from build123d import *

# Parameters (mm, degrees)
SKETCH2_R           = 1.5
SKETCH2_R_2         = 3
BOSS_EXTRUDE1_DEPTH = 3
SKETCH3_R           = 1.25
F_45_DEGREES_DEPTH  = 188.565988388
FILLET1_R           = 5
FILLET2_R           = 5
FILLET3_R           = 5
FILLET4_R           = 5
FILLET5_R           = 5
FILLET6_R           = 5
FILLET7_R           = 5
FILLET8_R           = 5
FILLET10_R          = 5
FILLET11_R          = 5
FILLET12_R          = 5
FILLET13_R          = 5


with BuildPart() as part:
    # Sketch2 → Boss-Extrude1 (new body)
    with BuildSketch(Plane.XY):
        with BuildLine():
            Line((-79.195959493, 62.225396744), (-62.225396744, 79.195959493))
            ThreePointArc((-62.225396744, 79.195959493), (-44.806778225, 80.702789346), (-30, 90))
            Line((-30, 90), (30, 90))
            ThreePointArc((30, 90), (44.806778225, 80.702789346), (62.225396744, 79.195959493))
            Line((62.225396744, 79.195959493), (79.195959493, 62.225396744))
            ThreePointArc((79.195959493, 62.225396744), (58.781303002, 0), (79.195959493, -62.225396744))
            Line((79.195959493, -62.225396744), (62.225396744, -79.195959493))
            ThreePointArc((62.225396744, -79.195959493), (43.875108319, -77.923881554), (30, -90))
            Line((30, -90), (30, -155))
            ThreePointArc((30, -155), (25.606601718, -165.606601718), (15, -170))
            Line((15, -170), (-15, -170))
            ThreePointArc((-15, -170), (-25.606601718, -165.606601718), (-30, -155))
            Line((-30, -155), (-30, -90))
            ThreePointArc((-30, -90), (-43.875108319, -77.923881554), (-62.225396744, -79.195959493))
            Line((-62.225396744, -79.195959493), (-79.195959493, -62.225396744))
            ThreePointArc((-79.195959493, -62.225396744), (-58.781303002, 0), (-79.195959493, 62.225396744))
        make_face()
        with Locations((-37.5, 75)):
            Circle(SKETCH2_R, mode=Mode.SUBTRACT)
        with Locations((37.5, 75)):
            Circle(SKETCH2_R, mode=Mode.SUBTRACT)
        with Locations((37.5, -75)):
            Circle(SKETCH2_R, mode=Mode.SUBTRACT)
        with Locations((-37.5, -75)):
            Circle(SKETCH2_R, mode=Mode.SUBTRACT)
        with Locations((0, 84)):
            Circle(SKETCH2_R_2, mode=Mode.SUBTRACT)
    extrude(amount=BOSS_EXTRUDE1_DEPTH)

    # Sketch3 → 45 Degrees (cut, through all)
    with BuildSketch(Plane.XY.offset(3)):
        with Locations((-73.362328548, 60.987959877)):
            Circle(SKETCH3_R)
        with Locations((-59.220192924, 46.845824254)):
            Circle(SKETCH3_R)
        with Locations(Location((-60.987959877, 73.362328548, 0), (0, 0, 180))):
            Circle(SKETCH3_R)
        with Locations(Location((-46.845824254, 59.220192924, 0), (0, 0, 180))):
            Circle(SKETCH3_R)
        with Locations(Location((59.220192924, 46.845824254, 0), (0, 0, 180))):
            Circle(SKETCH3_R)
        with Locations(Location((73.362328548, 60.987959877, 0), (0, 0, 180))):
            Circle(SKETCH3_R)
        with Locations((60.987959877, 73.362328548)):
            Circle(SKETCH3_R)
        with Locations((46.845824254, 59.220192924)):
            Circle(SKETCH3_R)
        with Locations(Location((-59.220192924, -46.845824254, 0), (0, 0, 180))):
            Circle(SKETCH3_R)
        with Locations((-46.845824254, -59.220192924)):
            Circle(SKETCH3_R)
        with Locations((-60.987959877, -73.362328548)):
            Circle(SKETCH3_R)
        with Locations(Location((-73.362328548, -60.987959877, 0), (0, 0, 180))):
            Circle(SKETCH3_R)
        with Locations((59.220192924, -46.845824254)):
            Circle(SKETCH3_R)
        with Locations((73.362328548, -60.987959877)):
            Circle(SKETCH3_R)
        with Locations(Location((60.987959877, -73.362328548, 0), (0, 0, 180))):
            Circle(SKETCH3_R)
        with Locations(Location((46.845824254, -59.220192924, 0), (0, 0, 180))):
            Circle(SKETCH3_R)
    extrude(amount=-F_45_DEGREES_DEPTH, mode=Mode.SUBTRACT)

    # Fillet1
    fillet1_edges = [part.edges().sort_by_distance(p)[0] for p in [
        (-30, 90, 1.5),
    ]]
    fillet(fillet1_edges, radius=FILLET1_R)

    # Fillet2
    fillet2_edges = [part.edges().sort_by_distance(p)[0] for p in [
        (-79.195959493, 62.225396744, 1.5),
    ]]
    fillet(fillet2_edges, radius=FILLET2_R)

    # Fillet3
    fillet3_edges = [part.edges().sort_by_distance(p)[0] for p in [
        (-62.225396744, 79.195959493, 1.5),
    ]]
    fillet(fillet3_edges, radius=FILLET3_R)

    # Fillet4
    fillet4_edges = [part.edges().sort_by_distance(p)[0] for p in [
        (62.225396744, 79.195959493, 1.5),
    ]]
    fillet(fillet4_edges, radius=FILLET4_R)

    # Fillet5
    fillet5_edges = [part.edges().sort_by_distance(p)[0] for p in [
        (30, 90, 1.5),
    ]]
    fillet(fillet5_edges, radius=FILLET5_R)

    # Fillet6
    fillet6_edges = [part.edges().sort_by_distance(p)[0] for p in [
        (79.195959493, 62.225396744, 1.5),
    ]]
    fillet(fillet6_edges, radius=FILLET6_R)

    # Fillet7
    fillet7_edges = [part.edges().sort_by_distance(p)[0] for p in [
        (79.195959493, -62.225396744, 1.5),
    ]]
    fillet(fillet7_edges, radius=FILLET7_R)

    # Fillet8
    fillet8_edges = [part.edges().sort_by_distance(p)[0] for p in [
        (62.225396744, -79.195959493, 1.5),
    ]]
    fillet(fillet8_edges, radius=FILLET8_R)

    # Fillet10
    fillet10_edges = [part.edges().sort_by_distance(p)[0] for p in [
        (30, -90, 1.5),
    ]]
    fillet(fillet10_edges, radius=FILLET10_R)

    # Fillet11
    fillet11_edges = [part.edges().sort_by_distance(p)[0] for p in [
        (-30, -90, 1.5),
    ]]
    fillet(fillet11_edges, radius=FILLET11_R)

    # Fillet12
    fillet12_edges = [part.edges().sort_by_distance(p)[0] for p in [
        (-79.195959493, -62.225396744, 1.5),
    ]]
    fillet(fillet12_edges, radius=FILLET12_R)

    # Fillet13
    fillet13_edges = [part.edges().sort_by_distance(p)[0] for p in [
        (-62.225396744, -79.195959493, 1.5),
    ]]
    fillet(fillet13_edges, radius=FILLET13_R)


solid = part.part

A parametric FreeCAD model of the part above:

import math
import FreeCAD as App
import Part
import Sketcher
Q = App.Units.Quantity


def edges_at(feature, points):
    """Names of the edges that pass closest to the given points."""
    edges = feature.Shape.Edges
    near = lambda p: min(range(len(edges)), key=lambda i: edges[i].distToShape(Part.Vertex(*p))[0])
    return sorted({f"Edge{near(p) + 1}" for p in points})

doc = App.newDocument("Part")
params = doc.addObject("Spreadsheet::Sheet", "Params")
for row, (alias, value) in enumerate([
    ("sketch1_diameter", "3 mm"),
    ("sketch1_diameter2", "6 mm"),
    ("sketch1_radius", "15 mm"),
    ("sketch1_width", "30 mm"),
    ("sketch1_height", "65 mm"),
    ("pad1_length", "3 mm"),
    ("sketch2_diameter", "2.5 mm"),
    ("fillet_radius", "5 mm"),
    ("fillet2_radius", "5 mm"),
    ("fillet3_radius", "5 mm"),
    ("fillet4_radius", "5 mm"),
    ("fillet5_radius", "5 mm"),
    ("fillet6_radius", "5 mm"),
    ("fillet7_radius", "5 mm"),
    ("fillet8_radius", "5 mm"),
    ("fillet9_radius", "5 mm"),
    ("fillet10_radius", "5 mm"),
    ("fillet11_radius", "5 mm"),
    ("fillet12_radius", "5 mm"),
], start=1):
    params.set(f"A{row}", alias)
    params.set(f"B{row}", "=" + value)
    params.setAlias(f"B{row}", alias)

body = doc.addObject("PartDesign::Body", "Body")

sketch1 = doc.addObject("Sketcher::SketchObject", "Sketch")
body.addObject(sketch1)
sketch1.AttachmentSupport = (doc.XY_Plane, [""])
sketch1.MapMode = "FlatFace"
sketch1.addGeometry(Part.LineSegment(App.Vector(-62.2, 79.2, 0), App.Vector(-79.2, 62.2, 0)), False)
sketch1.addGeometry(Part.ArcOfCircle(Part.Circle(App.Vector(-163.8, 0, 0), App.Vector(0, 0, 1), 105), math.radians(-36), math.radians(36)), False)
sketch1.addGeometry(Part.LineSegment(App.Vector(-79.2, -62.2, 0), App.Vector(-62.2, -79.2, 0)), False)
sketch1.addGeometry(Part.ArcOfCircle(Part.Circle(App.Vector(-51.5, -100.7, 0), App.Vector(0, 0, 1), 24), math.radians(26), math.radians(116)), False)
sketch1.addGeometry(Part.LineSegment(App.Vector(-30, -90, 0), App.Vector(-30, -155, 0)), False)
sketch1.addGeometry(Part.ArcOfCircle(Part.Circle(App.Vector(-15, -155, 0), App.Vector(0, 0, 1), 15), math.radians(180), math.radians(270)), False)
sketch1.addGeometry(Part.LineSegment(App.Vector(-15, -170, 0), App.Vector(15, -170, 0)), False)
sketch1.addGeometry(Part.ArcOfCircle(Part.Circle(App.Vector(15, -155, 0), App.Vector(0, 0, 1), 15), math.radians(-90), math.radians(0)), False)
sketch1.addGeometry(Part.LineSegment(App.Vector(30, -155, 0), App.Vector(30, -90, 0)), False)
sketch1.addGeometry(Part.ArcOfCircle(Part.Circle(App.Vector(51.5, -100.7, 0), App.Vector(0, 0, 1), 24), math.radians(64), math.radians(154)), False)
sketch1.addGeometry(Part.LineSegment(App.Vector(62.2, -79.2, 0), App.Vector(79.2, -62.2, 0)), False)
sketch1.addGeometry(Part.ArcOfCircle(Part.Circle(App.Vector(163.8, 0, 0), App.Vector(0, 0, 1), 105), math.radians(144), math.radians(216)), False)
sketch1.addGeometry(Part.LineSegment(App.Vector(79.2, 62.2, 0), App.Vector(62.2, 79.2, 0)), False)
sketch1.addGeometry(Part.ArcOfCircle(Part.Circle(App.Vector(56.6, 116, 0), App.Vector(0, 0, 1), 37.2), math.radians(-136), math.radians(-81)), False)
sketch1.addGeometry(Part.LineSegment(App.Vector(30, 90, 0), App.Vector(-30, 90, 0)), False)
sketch1.addGeometry(Part.ArcOfCircle(Part.Circle(App.Vector(-56.6, 116, 0), App.Vector(0, 0, 1), 37.2), math.radians(-99), math.radians(-44)), False)
sketch1.addGeometry(Part.Circle(App.Vector(37.5, -75, 0), App.Vector(0, 0, 1), 1.5), False)
sketch1.addGeometry(Part.Circle(App.Vector(-37.5, -75, 0), App.Vector(0, 0, 1), 1.5), False)
sketch1.addGeometry(Part.Circle(App.Vector(37.5, 75, 0), App.Vector(0, 0, 1), 1.5), False)
sketch1.addGeometry(Part.Circle(App.Vector(0, 84, 0), App.Vector(0, 0, 1), 3), False)
sketch1.addGeometry(Part.Circle(App.Vector(-37.5, 75, 0), App.Vector(0, 0, 1), 1.5), False)
sketch1.addConstraint(Sketcher.Constraint("Coincident", 0, 2, 1, 2))
sketch1.addConstraint(Sketcher.Constraint("Coincident", 1, 1, 2, 1))
sketch1.addConstraint(Sketcher.Constraint("Coincident", 2, 2, 3, 2))
sketch1.addConstraint(Sketcher.Constraint("Coincident", 3, 1, 4, 1))
sketch1.addConstraint(Sketcher.Constraint("Tangent", 4, 2, 5, 1))
sketch1.addConstraint(Sketcher.Constraint("Tangent", 5, 2, 6, 1))
sketch1.addConstraint(Sketcher.Constraint("Tangent", 6, 2, 7, 1))
sketch1.addConstraint(Sketcher.Constraint("Tangent", 7, 2, 8, 1))
sketch1.addConstraint(Sketcher.Constraint("Coincident", 8, 2, 9, 2))
sketch1.addConstraint(Sketcher.Constraint("Coincident", 9, 1, 10, 1))
sketch1.addConstraint(Sketcher.Constraint("Coincident", 10, 2, 11, 2))
sketch1.addConstraint(Sketcher.Constraint("Coincident", 11, 1, 12, 1))
sketch1.addConstraint(Sketcher.Constraint("Coincident", 12, 2, 13, 2))
sketch1.addConstraint(Sketcher.Constraint("Coincident", 13, 1, 14, 1))
sketch1.addConstraint(Sketcher.Constraint("Coincident", 14, 2, 15, 2))
sketch1.addConstraint(Sketcher.Constraint("Coincident", 15, 1, 0, 1))
sketch1.addConstraint(Sketcher.Constraint("Vertical", 4))
sketch1.addConstraint(Sketcher.Constraint("Horizontal", 6))
sketch1.addConstraint(Sketcher.Constraint("Vertical", 8))
sketch1.addConstraint(Sketcher.Constraint("Horizontal", 14))
sketch1.addConstraint(Sketcher.Constraint("Equal", 5, 7))
sketch1.addConstraint(Sketcher.Constraint("Equal", 3, 9))
sketch1.addConstraint(Sketcher.Constraint("Equal", 1, 11))
sketch1.addConstraint(Sketcher.Constraint("Equal", 13, 15))
sketch1.addConstraint(Sketcher.Constraint("Equal", 16, 17))
sketch1.addConstraint(Sketcher.Constraint("Equal", 17, 18))
sketch1.addConstraint(Sketcher.Constraint("Equal", 18, 20))
sketch1.addConstraint(Sketcher.Constraint("Symmetric", 1, 3, 11, 3, -1, 1))
sketch1.addConstraint(Sketcher.Constraint("Symmetric", 17, 3, 18, 3, -1, 1))
sketch1.addConstraint(Sketcher.Constraint("Symmetric", 16, 3, 20, 3, -1, 1))
sketch1.addConstraint(Sketcher.Constraint("Symmetric", 2, 2, 12, 2, -1, 1))
sketch1.addConstraint(Sketcher.Constraint("Symmetric", 3, 1, 13, 1, -1, 1))
sketch1.addConstraint(Sketcher.Constraint("Symmetric", 8, 2, 14, 2, -1, 1))
sketch1.addConstraint(Sketcher.Constraint("Symmetric", 9, 1, 15, 1, -1, 1))
sketch1.addConstraint(Sketcher.Constraint("Symmetric", 3, 3, 9, 3, -2))
sketch1.addConstraint(Sketcher.Constraint("Symmetric", 16, 3, 17, 3, -2))
sketch1.addConstraint(Sketcher.Constraint("Symmetric", 1, 1, 10, 2, -2))
sketch1.addConstraint(Sketcher.Constraint("PointOnObject", 19, 3, -2))
sketch1.addConstraint(Sketcher.Constraint("Perpendicular", 0, 2))
sketch1.addConstraint(Sketcher.Constraint("Perpendicular", 2, 10))
sketch1.addConstraint(Sketcher.Constraint("Perpendicular", 10, 12))
sketch1.addConstraint(Sketcher.Constraint("Horizontal", 13, 3, 15, 3))
sketch1.addConstraint(Sketcher.Constraint("Diameter", 16, Q("3 mm")))
sketch1.addConstraint(Sketcher.Constraint("Diameter", 19, Q("6 mm")))
sketch1.addConstraint(Sketcher.Constraint("Radius", 5, Q("15 mm")))
sketch1.addConstraint(Sketcher.Constraint("DistanceX", 6, 1, 6, 2, Q("30 mm")))
sketch1.addConstraint(Sketcher.Constraint("DistanceY", 4, 2, 4, 1, Q("65 mm")))
sketch1.addConstraint(Sketcher.Constraint("Distance", 0, Q("24 mm")))
sketch1.addConstraint(Sketcher.Constraint("DistanceY", 5, 3, -1, 1, Q("155 mm")))
sketch1.addConstraint(Sketcher.Constraint("DistanceY", 16, 3, -1, 1, Q("75 mm")))
sketch1.addConstraint(Sketcher.Constraint("DistanceY", -1, 1, 19, 3, Q("84 mm")))
sketch1.addConstraint(Sketcher.Constraint("DistanceX", 17, 3, 16, 3, Q("75 mm")))
sketch1.addConstraint(Sketcher.Constraint("Radius", 1, Q("105.041155 mm")))
sketch1.addConstraint(Sketcher.Constraint("Radius", 3, Q("24.033346 mm")))
sketch1.addConstraint(Sketcher.Constraint("Radius", 13, Q("37.202804 mm")))
sketch1.addConstraint(Sketcher.Constraint("DistanceX", 1, 3, 0, 2, Q("84.626499 mm")))
sketch1.addConstraint(Sketcher.Constraint("DistanceX", 1, 3, -1, 1, Q("163.822458 mm")))
sketch1.setExpression("Constraints[42]", "Params.sketch1_diameter")
sketch1.setExpression("Constraints[43]", "Params.sketch1_diameter2")
sketch1.setExpression("Constraints[44]", "Params.sketch1_radius")
sketch1.setExpression("Constraints[45]", "Params.sketch1_width")
sketch1.setExpression("Constraints[46]", "Params.sketch1_height")
pad1 = doc.addObject("PartDesign::Pad", "Pad")
body.addObject(pad1)
pad1.Profile = sketch1
pad1.setExpression("Length", "Params.pad1_length")

sketch2 = doc.addObject("Sketcher::SketchObject", "Sketch001")
body.addObject(sketch2)
sketch2.AttachmentSupport = (doc.XY_Plane, [""])
sketch2.MapMode = "FlatFace"
sketch2.AttachmentOffset = App.Placement(App.Vector(0, 0, 3), App.Rotation())
sketch2.addGeometry(Part.Circle(App.Vector(-73.4, 61, 0), App.Vector(0, 0, 1), 1.2), False)
sketch2.addGeometry(Part.Circle(App.Vector(-59.2, 46.8, 0), App.Vector(0, 0, 1), 1.2), False)
sketch2.addGeometry(Part.Circle(App.Vector(-61, 73.4, 0), App.Vector(0, 0, 1), 1.2), False)
sketch2.addGeometry(Part.Circle(App.Vector(-46.8, 59.2, 0), App.Vector(0, 0, 1), 1.2), False)
sketch2.addGeometry(Part.Circle(App.Vector(59.2, 46.8, 0), App.Vector(0, 0, 1), 1.2), False)
sketch2.addGeometry(Part.Circle(App.Vector(73.4, 61, 0), App.Vector(0, 0, 1), 1.2), False)
sketch2.addGeometry(Part.Circle(App.Vector(61, 73.4, 0), App.Vector(0, 0, 1), 1.2), False)
sketch2.addGeometry(Part.Circle(App.Vector(46.8, 59.2, 0), App.Vector(0, 0, 1), 1.2), False)
sketch2.addGeometry(Part.Circle(App.Vector(-59.2, -46.8, 0), App.Vector(0, 0, 1), 1.2), False)
sketch2.addGeometry(Part.Circle(App.Vector(-46.8, -59.2, 0), App.Vector(0, 0, 1), 1.2), False)
sketch2.addGeometry(Part.Circle(App.Vector(-61, -73.4, 0), App.Vector(0, 0, 1), 1.2), False)
sketch2.addGeometry(Part.Circle(App.Vector(-73.4, -61, 0), App.Vector(0, 0, 1), 1.2), False)
sketch2.addGeometry(Part.Circle(App.Vector(59.2, -46.8, 0), App.Vector(0, 0, 1), 1.2), False)
sketch2.addGeometry(Part.Circle(App.Vector(73.4, -61, 0), App.Vector(0, 0, 1), 1.2), False)
sketch2.addGeometry(Part.Circle(App.Vector(61, -73.4, 0), App.Vector(0, 0, 1), 1.2), False)
sketch2.addGeometry(Part.Circle(App.Vector(46.8, -59.2, 0), App.Vector(0, 0, 1), 1.2), False)
sketch2.addConstraint(Sketcher.Constraint("Equal", 0, 1))
sketch2.addConstraint(Sketcher.Constraint("Equal", 1, 2))
sketch2.addConstraint(Sketcher.Constraint("Equal", 2, 3))
sketch2.addConstraint(Sketcher.Constraint("Equal", 3, 4))
sketch2.addConstraint(Sketcher.Constraint("Equal", 4, 5))
sketch2.addConstraint(Sketcher.Constraint("Equal", 5, 6))
sketch2.addConstraint(Sketcher.Constraint("Equal", 6, 7))
sketch2.addConstraint(Sketcher.Constraint("Equal", 7, 8))
sketch2.addConstraint(Sketcher.Constraint("Equal", 8, 9))
sketch2.addConstraint(Sketcher.Constraint("Equal", 9, 10))
sketch2.addConstraint(Sketcher.Constraint("Equal", 10, 11))
sketch2.addConstraint(Sketcher.Constraint("Equal", 11, 12))
sketch2.addConstraint(Sketcher.Constraint("Equal", 12, 13))
sketch2.addConstraint(Sketcher.Constraint("Equal", 13, 14))
sketch2.addConstraint(Sketcher.Constraint("Equal", 14, 15))
sketch2.addConstraint(Sketcher.Constraint("Symmetric", 4, 3, 8, 3, -1, 1))
sketch2.addConstraint(Sketcher.Constraint("Symmetric", 7, 3, 9, 3, -1, 1))
sketch2.addConstraint(Sketcher.Constraint("Symmetric", 6, 3, 10, 3, -1, 1))
sketch2.addConstraint(Sketcher.Constraint("Symmetric", 5, 3, 11, 3, -1, 1))
sketch2.addConstraint(Sketcher.Constraint("Symmetric", 1, 3, 12, 3, -1, 1))
sketch2.addConstraint(Sketcher.Constraint("Symmetric", 0, 3, 13, 3, -1, 1))
sketch2.addConstraint(Sketcher.Constraint("Symmetric", 2, 3, 14, 3, -1, 1))
sketch2.addConstraint(Sketcher.Constraint("Symmetric", 3, 3, 15, 3, -1, 1))
sketch2.addConstraint(Sketcher.Constraint("Symmetric", 1, 3, 4, 3, -2))
sketch2.addConstraint(Sketcher.Constraint("Symmetric", 0, 3, 5, 3, -2))
sketch2.addConstraint(Sketcher.Constraint("Symmetric", 2, 3, 6, 3, -2))
sketch2.addConstraint(Sketcher.Constraint("Symmetric", 3, 3, 7, 3, -2))
sketch2.addConstraint(Sketcher.Constraint("Diameter", 0, Q("2.5 mm")))
sketch2.addConstraint(Sketcher.Constraint("DistanceX", 0, 3, -1, 1, Q("73.362329 mm")))
sketch2.addConstraint(Sketcher.Constraint("DistanceY", -1, 1, 0, 3, Q("60.98796 mm")))
sketch2.addConstraint(Sketcher.Constraint("DistanceX", 2, 3, -1, 1, Q("60.98796 mm")))
sketch2.addConstraint(Sketcher.Constraint("DistanceY", -1, 1, 2, 3, Q("73.362329 mm")))
sketch2.addConstraint(Sketcher.Constraint("DistanceX", 1, 3, 3, 3, Q("12.374369 mm")))
sketch2.addConstraint(Sketcher.Constraint("DistanceY", 1, 3, 3, 3, Q("12.374369 mm")))
sketch2.addConstraint(Sketcher.Constraint("DistanceX", 0, 3, 4, 3, Q("132.582521 mm")))
sketch2.addConstraint(Sketcher.Constraint("DistanceY", 8, 3, 1, 3, Q("93.691649 mm")))
sketch2.setExpression("Constraints[27]", "Params.sketch2_diameter")
pocket1 = doc.addObject("PartDesign::Pocket", "Pocket")
body.addObject(pocket1)
pocket1.Profile = sketch2
pocket1.Type = "ThroughAll"
doc.recompute()

fillet = doc.addObject("PartDesign::Fillet", "Fillet")
body.addObject(fillet)
fillet.Base = (pocket1, edges_at(pocket1, [(-30, 90, 1.5)]))
fillet.setExpression("Radius", "Params.fillet_radius")
doc.recompute()

fillet2 = doc.addObject("PartDesign::Fillet", "Fillet001")
body.addObject(fillet2)
fillet2.Base = (fillet, edges_at(fillet, [(-79.196, 62.225, 1.5)]))
fillet2.setExpression("Radius", "Params.fillet2_radius")
doc.recompute()

fillet3 = doc.addObject("PartDesign::Fillet", "Fillet002")
body.addObject(fillet3)
fillet3.Base = (fillet2, edges_at(fillet2, [(-62.225, 79.196, 1.5)]))
fillet3.setExpression("Radius", "Params.fillet3_radius")
doc.recompute()

fillet4 = doc.addObject("PartDesign::Fillet", "Fillet003")
body.addObject(fillet4)
fillet4.Base = (fillet3, edges_at(fillet3, [(62.225, 79.196, 1.5)]))
fillet4.setExpression("Radius", "Params.fillet4_radius")
doc.recompute()

fillet5 = doc.addObject("PartDesign::Fillet", "Fillet004")
body.addObject(fillet5)
fillet5.Base = (fillet4, edges_at(fillet4, [(30, 90, 1.5)]))
fillet5.setExpression("Radius", "Params.fillet5_radius")
doc.recompute()

fillet6 = doc.addObject("PartDesign::Fillet", "Fillet005")
body.addObject(fillet6)
fillet6.Base = (fillet5, edges_at(fillet5, [(79.196, 62.225, 1.5)]))
fillet6.setExpression("Radius", "Params.fillet6_radius")
doc.recompute()

fillet7 = doc.addObject("PartDesign::Fillet", "Fillet006")
body.addObject(fillet7)
fillet7.Base = (fillet6, edges_at(fillet6, [(79.196, -62.225, 1.5)]))
fillet7.setExpression("Radius", "Params.fillet7_radius")
doc.recompute()

fillet8 = doc.addObject("PartDesign::Fillet", "Fillet007")
body.addObject(fillet8)
fillet8.Base = (fillet7, edges_at(fillet7, [(62.225, -79.196, 1.5)]))
fillet8.setExpression("Radius", "Params.fillet8_radius")
doc.recompute()

fillet9 = doc.addObject("PartDesign::Fillet", "Fillet008")
body.addObject(fillet9)
fillet9.Base = (fillet8, edges_at(fillet8, [(30, -90, 1.5)]))
fillet9.setExpression("Radius", "Params.fillet9_radius")
doc.recompute()

fillet10 = doc.addObject("PartDesign::Fillet", "Fillet009")
body.addObject(fillet10)
fillet10.Base = (fillet9, edges_at(fillet9, [(-30, -90, 1.5)]))
fillet10.setExpression("Radius", "Params.fillet10_radius")
doc.recompute()

fillet11 = doc.addObject("PartDesign::Fillet", "Fillet010")
body.addObject(fillet11)
fillet11.Base = (fillet10, edges_at(fillet10, [(-79.196, -62.225, 1.5)]))
fillet11.setExpression("Radius", "Params.fillet11_radius")
doc.recompute()

fillet12 = doc.addObject("PartDesign::Fillet", "Fillet011")
body.addObject(fillet12)
fillet12.Base = (fillet11, edges_at(fillet11, [(-62.225, -79.196, 1.5)]))
fillet12.setExpression("Radius", "Params.fillet12_radius")

doc.recompute()
